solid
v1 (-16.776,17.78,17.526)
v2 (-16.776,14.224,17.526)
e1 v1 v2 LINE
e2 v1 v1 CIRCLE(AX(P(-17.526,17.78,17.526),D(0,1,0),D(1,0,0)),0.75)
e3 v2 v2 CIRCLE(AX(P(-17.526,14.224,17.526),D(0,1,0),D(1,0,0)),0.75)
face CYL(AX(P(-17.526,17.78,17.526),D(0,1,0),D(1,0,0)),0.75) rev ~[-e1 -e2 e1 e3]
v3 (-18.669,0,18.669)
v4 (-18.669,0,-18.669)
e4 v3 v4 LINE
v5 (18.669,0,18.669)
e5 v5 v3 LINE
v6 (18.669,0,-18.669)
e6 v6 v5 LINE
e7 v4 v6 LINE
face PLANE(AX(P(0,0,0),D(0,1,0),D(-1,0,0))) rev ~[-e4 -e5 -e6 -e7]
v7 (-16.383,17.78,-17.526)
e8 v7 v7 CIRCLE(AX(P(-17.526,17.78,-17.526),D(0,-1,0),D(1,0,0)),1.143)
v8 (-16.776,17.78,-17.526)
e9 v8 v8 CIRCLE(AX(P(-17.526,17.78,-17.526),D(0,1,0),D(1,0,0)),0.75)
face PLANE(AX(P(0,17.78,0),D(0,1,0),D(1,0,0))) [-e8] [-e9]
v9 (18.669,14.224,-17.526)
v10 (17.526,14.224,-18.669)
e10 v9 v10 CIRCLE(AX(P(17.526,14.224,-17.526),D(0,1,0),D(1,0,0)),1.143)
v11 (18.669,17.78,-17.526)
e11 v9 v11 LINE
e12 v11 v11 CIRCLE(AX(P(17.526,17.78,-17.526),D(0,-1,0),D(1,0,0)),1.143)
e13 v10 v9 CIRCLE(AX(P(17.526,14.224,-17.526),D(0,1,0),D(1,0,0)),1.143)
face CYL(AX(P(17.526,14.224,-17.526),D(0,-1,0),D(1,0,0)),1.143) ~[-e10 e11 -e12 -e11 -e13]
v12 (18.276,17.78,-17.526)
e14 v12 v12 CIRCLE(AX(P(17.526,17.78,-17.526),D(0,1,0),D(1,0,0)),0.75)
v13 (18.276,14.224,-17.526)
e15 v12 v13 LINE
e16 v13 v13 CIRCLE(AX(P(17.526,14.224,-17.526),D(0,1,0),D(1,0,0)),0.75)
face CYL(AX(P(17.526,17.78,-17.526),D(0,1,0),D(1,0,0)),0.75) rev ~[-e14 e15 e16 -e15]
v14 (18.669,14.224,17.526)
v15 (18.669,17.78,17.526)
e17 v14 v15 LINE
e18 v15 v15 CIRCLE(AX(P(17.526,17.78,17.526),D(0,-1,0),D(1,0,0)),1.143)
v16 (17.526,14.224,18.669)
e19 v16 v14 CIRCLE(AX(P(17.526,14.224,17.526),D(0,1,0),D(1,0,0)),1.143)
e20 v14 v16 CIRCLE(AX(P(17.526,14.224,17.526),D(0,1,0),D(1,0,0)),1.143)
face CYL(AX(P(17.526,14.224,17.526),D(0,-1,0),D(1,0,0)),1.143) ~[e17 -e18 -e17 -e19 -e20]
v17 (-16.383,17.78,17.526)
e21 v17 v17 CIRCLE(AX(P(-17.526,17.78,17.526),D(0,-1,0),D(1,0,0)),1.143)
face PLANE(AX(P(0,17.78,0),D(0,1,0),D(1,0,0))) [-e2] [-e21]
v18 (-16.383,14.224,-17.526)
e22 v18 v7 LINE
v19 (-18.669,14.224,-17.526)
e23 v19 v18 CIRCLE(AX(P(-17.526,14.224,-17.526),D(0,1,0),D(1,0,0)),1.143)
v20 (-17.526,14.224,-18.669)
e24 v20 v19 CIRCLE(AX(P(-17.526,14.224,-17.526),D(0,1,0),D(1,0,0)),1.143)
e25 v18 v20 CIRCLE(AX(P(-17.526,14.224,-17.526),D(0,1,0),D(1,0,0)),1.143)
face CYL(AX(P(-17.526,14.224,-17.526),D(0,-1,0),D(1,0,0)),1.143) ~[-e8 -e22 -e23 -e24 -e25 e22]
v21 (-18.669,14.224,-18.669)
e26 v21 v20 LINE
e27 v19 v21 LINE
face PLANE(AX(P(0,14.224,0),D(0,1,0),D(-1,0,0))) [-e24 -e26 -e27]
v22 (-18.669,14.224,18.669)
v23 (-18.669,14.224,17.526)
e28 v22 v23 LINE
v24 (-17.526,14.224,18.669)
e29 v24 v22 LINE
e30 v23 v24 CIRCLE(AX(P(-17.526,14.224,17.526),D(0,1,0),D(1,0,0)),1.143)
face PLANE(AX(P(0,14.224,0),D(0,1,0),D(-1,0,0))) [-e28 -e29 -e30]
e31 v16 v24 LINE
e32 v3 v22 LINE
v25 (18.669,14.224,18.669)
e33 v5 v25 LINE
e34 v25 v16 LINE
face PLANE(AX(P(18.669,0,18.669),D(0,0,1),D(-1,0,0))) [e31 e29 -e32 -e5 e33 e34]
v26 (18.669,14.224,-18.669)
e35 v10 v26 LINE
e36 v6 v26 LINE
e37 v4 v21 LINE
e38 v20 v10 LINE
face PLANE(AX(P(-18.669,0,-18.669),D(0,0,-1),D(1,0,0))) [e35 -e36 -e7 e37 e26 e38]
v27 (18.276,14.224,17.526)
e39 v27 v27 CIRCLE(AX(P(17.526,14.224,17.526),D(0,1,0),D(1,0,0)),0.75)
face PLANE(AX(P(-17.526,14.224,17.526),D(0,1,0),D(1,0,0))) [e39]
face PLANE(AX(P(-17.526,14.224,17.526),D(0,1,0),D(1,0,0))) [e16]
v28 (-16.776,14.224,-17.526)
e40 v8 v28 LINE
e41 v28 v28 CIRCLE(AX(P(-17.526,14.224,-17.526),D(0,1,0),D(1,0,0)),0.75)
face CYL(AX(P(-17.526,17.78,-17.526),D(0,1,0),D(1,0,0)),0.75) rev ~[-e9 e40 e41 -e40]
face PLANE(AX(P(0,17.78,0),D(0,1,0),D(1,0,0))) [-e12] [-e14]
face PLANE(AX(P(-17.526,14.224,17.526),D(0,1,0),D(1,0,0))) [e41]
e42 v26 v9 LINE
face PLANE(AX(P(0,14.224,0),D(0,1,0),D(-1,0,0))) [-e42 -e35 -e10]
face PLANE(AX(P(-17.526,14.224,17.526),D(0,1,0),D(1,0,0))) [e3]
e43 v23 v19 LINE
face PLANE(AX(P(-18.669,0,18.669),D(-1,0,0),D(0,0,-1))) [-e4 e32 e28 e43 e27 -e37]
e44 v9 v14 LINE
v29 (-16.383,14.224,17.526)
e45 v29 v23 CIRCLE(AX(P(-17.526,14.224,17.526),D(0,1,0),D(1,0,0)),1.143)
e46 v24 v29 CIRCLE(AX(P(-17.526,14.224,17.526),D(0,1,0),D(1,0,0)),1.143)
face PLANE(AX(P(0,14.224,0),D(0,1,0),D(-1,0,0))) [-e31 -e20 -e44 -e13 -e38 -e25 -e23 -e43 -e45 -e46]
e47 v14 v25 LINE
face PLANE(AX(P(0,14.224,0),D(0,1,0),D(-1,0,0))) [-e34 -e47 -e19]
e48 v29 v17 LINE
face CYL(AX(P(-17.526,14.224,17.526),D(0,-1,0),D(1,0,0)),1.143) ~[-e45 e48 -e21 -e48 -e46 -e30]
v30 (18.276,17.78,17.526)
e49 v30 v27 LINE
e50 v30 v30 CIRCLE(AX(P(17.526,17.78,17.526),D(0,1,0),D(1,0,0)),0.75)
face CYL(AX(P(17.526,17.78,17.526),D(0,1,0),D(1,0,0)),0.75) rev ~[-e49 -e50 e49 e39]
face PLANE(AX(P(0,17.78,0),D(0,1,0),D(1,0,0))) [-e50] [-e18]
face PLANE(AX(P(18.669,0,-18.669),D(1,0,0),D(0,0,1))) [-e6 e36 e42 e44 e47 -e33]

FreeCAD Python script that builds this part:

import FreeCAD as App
import Part
import Sketcher

V = App.Vector
Q = App.Units.Quantity


def add_polygon(sketch, points):
    """Adds a closed chain of lines whose ends are joined by coincident constraints."""
    first, n = sketch.GeometryCount, len(points)
    for a, b in zip(points, points[1:] + points[:1]):
        sketch.addGeometry(Part.LineSegment(App.Vector(*a, 0), App.Vector(*b, 0)), False)
    for i in range(n):
        sketch.addConstraint(Sketcher.Constraint("Coincident", first + i, 2, first + (i + 1) % n, 1))

doc = App.newDocument("Part")
body = doc.addObject("PartDesign::Body", "Body")

# Sketch on XZ plane
sketch1 = doc.addObject("Sketcher::SketchObject", "Sketch")
body.addObject(sketch1)
sketch1.AttachmentSupport = (doc.XZ_Plane, [""])
sketch1.MapMode = "FlatFace"
add_polygon(sketch1, [(-19, 19), (19, 19), (19, -19), (-19, -19)])  # lines 0-3
sketch1.addConstraint([
    Sketcher.Constraint("Horizontal", 0),
    Sketcher.Constraint("Vertical", 1),
    Sketcher.Constraint("Horizontal", 2),
    Sketcher.Constraint("Vertical", 3),
    Sketcher.Constraint("Symmetric", 0, 2, 2, 2, -1, 1),
    Sketcher.Constraint("Equal", 2, 1),
    Sketcher.Constraint("DistanceX", 0, 1, 0, 2, Q("1.47 in")),
])
pad1 = doc.addObject("PartDesign::Pad", "Pad")
body.addObject(pad1)
pad1.Profile = sketch1
pad1.Length = Q("0.56 in")
pad1.Reversed = True

# Sketch on XZ plane
sketch2 = doc.addObject("Sketcher::SketchObject", "Sketch001")
body.addObject(sketch2)
sketch2.AttachmentSupport = (doc.XZ_Plane, [""])
sketch2.MapMode = "FlatFace"
sketch2.AttachmentOffset = App.Placement(V(0, 0, -0.56 * 25.4), App.Rotation())
sketch2.addGeometry([
    Part.Circle(V(-17.5, 17.5, 0), V(0, 0, 1), 1.1),
    Part.Circle(V(-17.5, -17.5, 0), V(0, 0, 1), 1.1),
    Part.Circle(V(17.5, 17.5, 0), V(0, 0, 1), 1.1),
    Part.Circle(V(17.5, -17.5, 0), V(0, 0, 1), 1.1),
], False)
sketch2.addConstraint([
    Sketcher.Constraint("Equal", 0, 1),
    Sketcher.Constraint("Equal", 1, 2),
    Sketcher.Constraint("Equal", 2, 3),
    Sketcher.Constraint("Symmetric", 1, 3, 2, 3, -1, 1),
    Sketcher.Constraint("Symmetric", 0, 3, 3, 3, -1, 1),
    Sketcher.Constraint("Symmetric", 0, 3, 2, 3, -2),
    Sketcher.Constraint("Diameter", 0, Q("0.09 in")),
    Sketcher.Constraint("DistanceX", 0, 3, -1, 1, Q("0.69 in")),
    Sketcher.Constraint("DistanceY", -1, 1, 0, 3, Q("0.69 in")),
])
pad2 = doc.addObject("PartDesign::Pad", "Pad001")
body.addObject(pad2)
pad2.Profile = sketch2
pad2.Length = Q("0.14 in")
pad2.Reversed = True

# Sketch on XZ plane
sketch3 = doc.addObject("Sketcher::SketchObject", "Sketch002")
body.addObject(sketch3)
sketch3.AttachmentSupport = (doc.XZ_Plane, [""])
sketch3.MapMode = "FlatFace"
sketch3.AttachmentOffset = App.Placement(V(0, 0, -0.7 * 25.4), App.Rotation())
sketch3.addGeometry([
    Part.Circle(V(-17.5, 17.5, 0), V(0, 0, 1), 0.8),
    Part.Circle(V(17.5, 17.5, 0), V(0, 0, 1), 0.8),
    Part.Circle(V(17.5, -17.5, 0), V(0, 0, 1), 0.8),
    Part.Circle(V(-17.5, -17.5, 0), V(0, 0, 1), 0.8),
], False)
sketch3.addConstraint([
    Sketcher.Constraint("Equal", 0, 1),
    Sketcher.Constraint("Equal", 1, 2),
    Sketcher.Constraint("Equal", 2, 3),
    Sketcher.Constraint("Symmetric", 0, 3, 2, 3, -1, 1),
    Sketcher.Constraint("Symmetric", 1, 3, 3, 3, -1, 1),
    Sketcher.Constraint("Symmetric", 0, 3, 1, 3, -2),
    Sketcher.Constraint("Diameter", 0, Q("1.5 mm")),
    Sketcher.Constraint("DistanceX", 0, 3, -1, 1, Q("0.69 in")),
    Sketcher.Constraint("DistanceY", -1, 1, 0, 3, Q("0.69 in")),
])
pocket1 = doc.addObject("PartDesign::Pocket", "Pocket")
body.addObject(pocket1)
pocket1.Profile = sketch3
pocket1.Length = Q("0.14 in")
pocket1.Reversed = True

doc.recompute()
